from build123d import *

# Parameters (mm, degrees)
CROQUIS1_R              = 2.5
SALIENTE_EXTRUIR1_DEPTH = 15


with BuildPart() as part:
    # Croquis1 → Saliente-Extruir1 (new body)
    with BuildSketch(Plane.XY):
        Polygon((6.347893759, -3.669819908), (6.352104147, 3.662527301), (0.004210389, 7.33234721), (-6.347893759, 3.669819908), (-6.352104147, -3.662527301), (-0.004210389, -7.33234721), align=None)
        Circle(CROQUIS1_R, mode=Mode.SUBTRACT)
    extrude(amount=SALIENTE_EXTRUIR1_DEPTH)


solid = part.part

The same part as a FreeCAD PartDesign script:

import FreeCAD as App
import Part
import Sketcher

doc = App.newDocument("Part")
body = doc.addObject("PartDesign::Body", "Body")

sketch1 = body.newObject("Sketcher::SketchObject", "Sketch")
sketch1.AttachmentSupport = (doc.getObject("XY_Plane"), [""])
sketch1.MapMode = "FlatFace"
sketch1.addGeometry([
    Part.LineSegment(App.Vector(6.3, -3.7, 0), App.Vector(6.4, 3.7, 0)),
    Part.LineSegment(App.Vector(6.4, 3.7, 0), App.Vector(0, 7.3, 0)),
    Part.LineSegment(App.Vector(0, 7.3, 0), App.Vector(-6.3, 3.7, 0)),
    Part.LineSegment(App.Vector(-6.3, 3.7, 0), App.Vector(-6.4, -3.7, 0)),
    Part.LineSegment(App.Vector(-6.4, -3.7, 0), App.Vector(0, -7.3, 0)),
    Part.LineSegment(App.Vector(0, -7.3, 0), App.Vector(6.3, -3.7, 0)),
    Part.Circle(App.Vector(0, 0, 0), App.Vector(0, 0, 1), 2.5),
], False)
sketch1.addConstraint([
    Sketcher.Constraint("Coincident", 0, 2, 1, 1),
    Sketcher.Constraint("Coincident", 1, 2, 2, 1),
    Sketcher.Constraint("Coincident", 2, 2, 3, 1),
    Sketcher.Constraint("Coincident", 3, 2, 4, 1),
    Sketcher.Constraint("Coincident", 4, 2, 5, 1),
    Sketcher.Constraint("Coincident", 5, 2, 0, 1),
    Sketcher.Constraint("Coincident", 6, 3, -1, 1),
    Sketcher.Constraint("Symmetric", 0, 2, 3, 2, -1, 1),
    Sketcher.Constraint("Symmetric", 1, 2, 4, 2, -1, 1),
    Sketcher.Constraint("Symmetric", 2, 2, 5, 2, -1, 1),
    Sketcher.Constraint("Equal", 0, 1),
    Sketcher.Constraint("Equal", 1, 2),
    Sketcher.Constraint("Diameter", 6, 5.0),
    Sketcher.Constraint("Distance", 0, 7.332348),
    Sketcher.Constraint("DistanceX", -1, 1, 1, 2, 0.00421),
    Sketcher.Constraint("DistanceY", -1, 1, 2, 2, 3.66982),
    Sketcher.Constraint("DistanceY", 0, 2, 1, 2, 3.66982),
])
pad1 = body.newObject("PartDesign::Pad", "Pad")
pad1.Profile = sketch1
pad1.Length = 15

doc.recompute()
